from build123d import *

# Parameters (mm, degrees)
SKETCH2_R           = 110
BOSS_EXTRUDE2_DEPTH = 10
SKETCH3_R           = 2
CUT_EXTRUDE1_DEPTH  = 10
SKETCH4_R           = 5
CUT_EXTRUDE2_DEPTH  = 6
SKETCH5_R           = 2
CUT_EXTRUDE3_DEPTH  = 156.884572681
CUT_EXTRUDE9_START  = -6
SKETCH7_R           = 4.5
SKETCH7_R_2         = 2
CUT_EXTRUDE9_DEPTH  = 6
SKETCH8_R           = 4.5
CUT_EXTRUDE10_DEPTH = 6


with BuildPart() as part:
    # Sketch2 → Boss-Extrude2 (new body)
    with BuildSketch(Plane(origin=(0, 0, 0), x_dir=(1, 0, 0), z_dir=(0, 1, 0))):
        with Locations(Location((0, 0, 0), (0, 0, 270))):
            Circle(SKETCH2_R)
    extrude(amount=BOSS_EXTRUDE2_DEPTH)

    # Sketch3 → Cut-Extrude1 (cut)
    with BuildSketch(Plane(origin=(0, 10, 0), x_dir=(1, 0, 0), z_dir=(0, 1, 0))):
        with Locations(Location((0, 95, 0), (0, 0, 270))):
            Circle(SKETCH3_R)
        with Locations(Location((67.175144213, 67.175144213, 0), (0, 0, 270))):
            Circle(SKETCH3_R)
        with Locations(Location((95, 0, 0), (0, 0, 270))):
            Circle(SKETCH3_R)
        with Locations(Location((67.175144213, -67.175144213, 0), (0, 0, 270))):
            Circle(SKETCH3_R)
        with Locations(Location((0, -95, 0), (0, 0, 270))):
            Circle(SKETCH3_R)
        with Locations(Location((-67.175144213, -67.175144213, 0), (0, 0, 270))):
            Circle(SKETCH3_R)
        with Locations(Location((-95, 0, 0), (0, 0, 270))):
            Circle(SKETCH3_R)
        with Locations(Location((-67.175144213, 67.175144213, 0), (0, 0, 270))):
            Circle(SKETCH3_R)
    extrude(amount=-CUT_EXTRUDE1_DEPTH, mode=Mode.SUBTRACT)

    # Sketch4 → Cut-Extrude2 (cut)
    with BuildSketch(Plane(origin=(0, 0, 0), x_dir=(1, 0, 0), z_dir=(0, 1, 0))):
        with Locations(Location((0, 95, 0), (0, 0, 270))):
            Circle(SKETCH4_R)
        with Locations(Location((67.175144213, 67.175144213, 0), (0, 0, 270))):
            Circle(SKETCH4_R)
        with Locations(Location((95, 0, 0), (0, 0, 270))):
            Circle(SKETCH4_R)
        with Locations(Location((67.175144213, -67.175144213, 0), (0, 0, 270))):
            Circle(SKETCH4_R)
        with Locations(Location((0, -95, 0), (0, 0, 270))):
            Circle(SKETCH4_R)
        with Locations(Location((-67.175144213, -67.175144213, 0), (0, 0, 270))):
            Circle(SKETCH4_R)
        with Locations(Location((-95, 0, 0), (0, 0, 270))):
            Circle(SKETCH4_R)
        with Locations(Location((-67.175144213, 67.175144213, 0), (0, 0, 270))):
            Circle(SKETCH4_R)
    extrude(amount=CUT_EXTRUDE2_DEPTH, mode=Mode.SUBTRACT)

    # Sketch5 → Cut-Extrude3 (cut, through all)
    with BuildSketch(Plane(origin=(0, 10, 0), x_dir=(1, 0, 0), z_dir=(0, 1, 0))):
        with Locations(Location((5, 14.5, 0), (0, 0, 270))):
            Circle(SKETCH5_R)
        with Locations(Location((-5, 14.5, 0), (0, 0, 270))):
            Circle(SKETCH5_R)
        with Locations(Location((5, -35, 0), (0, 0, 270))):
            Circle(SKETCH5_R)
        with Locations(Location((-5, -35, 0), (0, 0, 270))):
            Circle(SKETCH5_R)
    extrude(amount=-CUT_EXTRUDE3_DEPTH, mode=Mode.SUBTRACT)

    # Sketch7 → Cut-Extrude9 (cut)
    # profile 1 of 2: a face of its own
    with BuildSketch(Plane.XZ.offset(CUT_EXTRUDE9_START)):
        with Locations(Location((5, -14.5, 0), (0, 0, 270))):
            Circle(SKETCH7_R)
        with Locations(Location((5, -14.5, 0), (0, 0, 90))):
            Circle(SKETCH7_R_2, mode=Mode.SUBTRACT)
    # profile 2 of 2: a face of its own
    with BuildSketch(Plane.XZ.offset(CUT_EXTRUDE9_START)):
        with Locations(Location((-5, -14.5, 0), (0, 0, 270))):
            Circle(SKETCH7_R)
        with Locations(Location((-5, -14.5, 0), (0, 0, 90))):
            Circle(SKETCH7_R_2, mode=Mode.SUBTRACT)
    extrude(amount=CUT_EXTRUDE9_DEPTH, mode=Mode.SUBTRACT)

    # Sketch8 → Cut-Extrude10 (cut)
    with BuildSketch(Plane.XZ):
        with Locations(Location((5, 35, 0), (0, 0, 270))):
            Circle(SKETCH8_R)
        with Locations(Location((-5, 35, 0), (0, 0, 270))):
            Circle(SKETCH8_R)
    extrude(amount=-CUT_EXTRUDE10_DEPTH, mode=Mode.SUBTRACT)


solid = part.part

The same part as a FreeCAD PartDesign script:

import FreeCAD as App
import Part
import Sketcher

V = App.Vector
Q = App.Units.Quantity

doc = App.newDocument("Part")
body = doc.addObject("PartDesign::Body", "Body")

# Sketch on XZ plane
sketch1 = body.newObject("Sketcher::SketchObject", "Sketch")
sketch1.AttachmentSupport = (doc.getObject("XZ_Plane"), [""])
sketch1.MapMode = "FlatFace"
sketch1.addGeometry(Part.Circle(V(0, 0, 0), V(0, 0, 1), 110), False)
sketch1.addConstraint(Sketcher.Constraint("Coincident", 0, 3, -1, 1))
sketch1.addConstraint(Sketcher.Constraint("Diameter", 0, Q("220 mm")))
pad1 = body.newObject("PartDesign::Pad", "Pad")
pad1.Profile = sketch1
pad1.Length = 10
pad1.Reversed = True

# Sketch on XZ plane
sketch2 = body.newObject("Sketcher::SketchObject", "Sketch001")
sketch2.AttachmentSupport = (doc.getObject("XZ_Plane"), [""])
sketch2.MapMode = "FlatFace"
sketch2.AttachmentOffset = App.Placement(V(0, 0, -10), App.Rotation())
sketch2.addGeometry(Part.Circle(V(0, -95, 0), V(0, 0, 1), 2), False)
sketch2.addGeometry(Part.Circle(V(67.2, -67.2, 0), V(0, 0, 1), 2), False)
sketch2.addGeometry(Part.Circle(V(95, 0, 0), V(0, 0, 1), 2), False)
sketch2.addGeometry(Part.Circle(V(67.2, 67.2, 0), V(0, 0, 1), 2), False)
sketch2.addGeometry(Part.Circle(V(0, 95, 0), V(0, 0, 1), 2), False)
sketch2.addGeometry(Part.Circle(V(-67.2, 67.2, 0), V(0, 0, 1), 2), False)
sketch2.addGeometry(Part.Circle(V(-95, 0, 0), V(0, 0, 1), 2), False)
sketch2.addGeometry(Part.Circle(V(-67.2, -67.2, 0), V(0, 0, 1), 2), False)
sketch2.addConstraint(Sketcher.Constraint("Equal", 0, 1))
sketch2.addConstraint(Sketcher.Constraint("Equal", 1, 2))
sketch2.addConstraint(Sketcher.Constraint("Equal", 2, 3))
sketch2.addConstraint(Sketcher.Constraint("Equal", 3, 4))
sketch2.addConstraint(Sketcher.Constraint("Equal", 4, 5))
sketch2.addConstraint(Sketcher.Constraint("Equal", 5, 6))
sketch2.addConstraint(Sketcher.Constraint("Equal", 6, 7))
sketch2.addConstraint(Sketcher.Constraint("Symmetric", 0, 3, 4, 3, -1, 1))
sketch2.addConstraint(Sketcher.Constraint("Symmetric", 1, 3, 5, 3, -1, 1))
sketch2.addConstraint(Sketcher.Constraint("Symmetric", 2, 3, 6, 3, -1, 1))
sketch2.addConstraint(Sketcher.Constraint("Symmetric", 3, 3, 7, 3, -1, 1))
sketch2.addConstraint(Sketcher.Constraint("Symmetric", 3, 3, 5, 3, -2))
sketch2.addConstraint(Sketcher.Constraint("PointOnObject", 0, 3, -2))
sketch2.addConstraint(Sketcher.Constraint("PointOnObject", 2, 3, -1))
sketch2.addConstraint(Sketcher.Constraint("Diameter", 0, Q("4 mm")))
sketch2.addConstraint(Sketcher.Constraint("DistanceY", 0, 3, -1, 1, Q("95 mm")))
sketch2.addConstraint(Sketcher.Constraint("DistanceX", -1, 1, 2, 3, Q("95 mm")))
sketch2.addConstraint(Sketcher.Constraint("DistanceY", 1, 3, 3, 3, Q("134.350288 mm")))
sketch2.addConstraint(Sketcher.Constraint("DistanceX", 5, 3, 3, 3, Q("134.350288 mm")))
pocket1 = body.newObject("PartDesign::Pocket", "Pocket")
pocket1.Profile = sketch2
pocket1.Length = 10
pocket1.Reversed = True

# Sketch on XZ plane
sketch3 = body.newObject("Sketcher::SketchObject", "Sketch002")
sketch3.AttachmentSupport = (doc.getObject("XZ_Plane"), [""])
sketch3.MapMode = "FlatFace"
sketch3.addGeometry(Part.Circle(V(0, -95, 0), V(0, 0, 1), 5), False)
sketch3.addGeometry(Part.Circle(V(67, -67, 0), V(0, 0, 1), 5), False)
sketch3.addGeometry(Part.Circle(V(95, 0, 0), V(0, 0, 1), 5), False)
sketch3.addGeometry(Part.Circle(V(67, 67, 0), V(0, 0, 1), 5), False)
sketch3.addGeometry(Part.Circle(V(0, 95, 0), V(0, 0, 1), 5), False)
sketch3.addGeometry(Part.Circle(V(-67, 67, 0), V(0, 0, 1), 5), False)
sketch3.addGeometry(Part.Circle(V(-95, 0, 0), V(0, 0, 1), 5), False)
sketch3.addGeometry(Part.Circle(V(-67, -67, 0), V(0, 0, 1), 5), False)
sketch3.addConstraint(Sketcher.Constraint("Equal", 0, 1))
sketch3.addConstraint(Sketcher.Constraint("Equal", 1, 2))
sketch3.addConstraint(Sketcher.Constraint("Equal", 2, 3))
sketch3.addConstraint(Sketcher.Constraint("Equal", 3, 4))
sketch3.addConstraint(Sketcher.Constraint("Equal", 4, 5))
sketch3.addConstraint(Sketcher.Constraint("Equal", 5, 6))
sketch3.addConstraint(Sketcher.Constraint("Equal", 6, 7))
sketch3.addConstraint(Sketcher.Constraint("Symmetric", 0, 3, 4, 3, -1, 1))
sketch3.addConstraint(Sketcher.Constraint("Symmetric", 1, 3, 5, 3, -1, 1))
sketch3.addConstraint(Sketcher.Constraint("Symmetric", 2, 3, 6, 3, -1, 1))
sketch3.addConstraint(Sketcher.Constraint("Symmetric", 3, 3, 7, 3, -1, 1))
sketch3.addConstraint(Sketcher.Constraint("Symmetric", 3, 3, 5, 3, -2))
sketch3.addConstraint(Sketcher.Constraint("PointOnObject", 0, 3, -2))
sketch3.addConstraint(Sketcher.Constraint("PointOnObject", 2, 3, -1))
sketch3.addConstraint(Sketcher.Constraint("Diameter", 0, Q("10 mm")))
sketch3.addConstraint(Sketcher.Constraint("DistanceY", 0, 3, -1, 1, Q("95 mm")))
sketch3.addConstraint(Sketcher.Constraint("DistanceX", -1, 1, 2, 3, Q("95 mm")))
sketch3.addConstraint(Sketcher.Constraint("DistanceY", 1, 3, 3, 3, Q("134.350288 mm")))
sketch3.addConstraint(Sketcher.Constraint("DistanceX", 5, 3, 3, 3, Q("134.350288 mm")))
pocket2 = body.newObject("PartDesign::Pocket", "Pocket001")
pocket2.Profile = sketch3
pocket2.Length = 6

# Sketch on XZ plane
sketch4 = body.newObject("Sketcher::SketchObject", "Sketch003")
sketch4.AttachmentSupport = (doc.getObject("XZ_Plane"), [""])
sketch4.MapMode = "FlatFace"
sketch4.AttachmentOffset = App.Placement(V(0, 0, -10), App.Rotation())
sketch4.addGeometry(Part.Circle(V(5, -14.5, 0), V(0, 0, 1), 2), False)
sketch4.addGeometry(Part.Circle(V(-5, -14.5, 0), V(0, 0, 1), 2), False)
sketch4.addGeometry(Part.Circle(V(5, 35, 0), V(0, 0, 1), 2), False)
sketch4.addGeometry(Part.Circle(V(-5, 35, 0), V(0, 0, 1), 2), False)
sketch4.addConstraint(Sketcher.Constraint("Equal", 0, 1))
sketch4.addConstraint(Sketcher.Constraint("Equal", 1, 2))
sketch4.addConstraint(Sketcher.Constraint("Equal", 2, 3))
sketch4.addConstraint(Sketcher.Constraint("Symmetric", 0, 3, 1, 3, -2))
sketch4.addConstraint(Sketcher.Constraint("Symmetric", 2, 3, 3, 3, -2))
sketch4.addConstraint(Sketcher.Constraint("Vertical", 0, 3, 2, 3))
sketch4.addConstraint(Sketcher.Constraint("Diameter", 0, Q("4 mm")))
sketch4.addConstraint(Sketcher.Constraint("DistanceX", -1, 1, 0, 3, Q("5 mm")))
sketch4.addConstraint(Sketcher.Constraint("DistanceY", -1, 1, 2, 3, Q("35 mm")))
sketch4.addConstraint(Sketcher.Constraint("DistanceY", 0, 3, -1, 1, Q("14.5 mm")))
pocket3 = body.newObject("PartDesign::Pocket", "Pocket002")
pocket3.Profile = sketch4
pocket3.Type = "ThroughAll"
pocket3.Reversed = True

# Sketch on XZ plane
sketch5 = body.newObject("Sketcher::SketchObject", "Sketch004")
sketch5.AttachmentSupport = (doc.getObject("XZ_Plane"), [""])
sketch5.MapMode = "FlatFace"
sketch5.AttachmentOffset = App.Placement(V(0, 0, -6), App.Rotation())
sketch5.addGeometry(Part.Circle(V(5, -14.5, 0), V(0, 0, 1), 4.5), False)
sketch5.addGeometry(Part.Circle(V(5, -14.5, 0), V(0, 0, 1), 2), False)
sketch5.addGeometry(Part.Circle(V(-5, -14.5, 0), V(0, 0, 1), 4.5), False)
sketch5.addGeometry(Part.Circle(V(-5, -14.5, 0), V(0, 0, 1), 2), False)
sketch5.addConstraint(Sketcher.Constraint("Coincident", 1, 3, 0, 3))
sketch5.addConstraint(Sketcher.Constraint("Coincident", 3, 3, 2, 3))
sketch5.addConstraint(Sketcher.Constraint("Equal", 0, 2))
sketch5.addConstraint(Sketcher.Constraint("Equal", 1, 3))
sketch5.addConstraint(Sketcher.Constraint("Symmetric", 0, 3, 2, 3, -2))
sketch5.addConstraint(Sketcher.Constraint("Diameter", 0, Q("9 mm")))
sketch5.addConstraint(Sketcher.Constraint("Diameter", 1, Q("4 mm")))
sketch5.addConstraint(Sketcher.Constraint("DistanceX", -1, 1, 0, 3, Q("5 mm")))
sketch5.addConstraint(Sketcher.Constraint("DistanceY", 0, 3, -1, 1, Q("14.5 mm")))
pocket4 = body.newObject("PartDesign::Pocket", "Pocket003")
pocket4.Profile = sketch5
pocket4.Length = 6
pocket4.Reversed = True

# Sketch on XZ plane
sketch6 = body.newObject("Sketcher::SketchObject", "Sketch005")
sketch6.AttachmentSupport = (doc.getObject("XZ_Plane"), [""])
sketch6.MapMode = "FlatFace"
sketch6.addGeometry(Part.Circle(V(5, 35, 0), V(0, 0, 1), 4.5), False)
sketch6.addGeometry(Part.Circle(V(-5, 35, 0), V(0, 0, 1), 4.5), False)
sketch6.addConstraint(Sketcher.Constraint("Equal", 0, 1))
sketch6.addConstraint(Sketcher.Constraint("Symmetric", 0, 3, 1, 3, -2))
sketch6.addConstraint(Sketcher.Constraint("Diameter", 0, Q("9 mm")))
sketch6.addConstraint(Sketcher.Constraint("DistanceX", -1, 1, 0, 3, Q("5 mm")))
sketch6.addConstraint(Sketcher.Constraint("DistanceY", -1, 1, 0, 3, Q("35 mm")))
pocket5 = body.newObject("PartDesign::Pocket", "Pocket004")
pocket5.Profile = sketch6
pocket5.Length = 6

doc.recompute()
